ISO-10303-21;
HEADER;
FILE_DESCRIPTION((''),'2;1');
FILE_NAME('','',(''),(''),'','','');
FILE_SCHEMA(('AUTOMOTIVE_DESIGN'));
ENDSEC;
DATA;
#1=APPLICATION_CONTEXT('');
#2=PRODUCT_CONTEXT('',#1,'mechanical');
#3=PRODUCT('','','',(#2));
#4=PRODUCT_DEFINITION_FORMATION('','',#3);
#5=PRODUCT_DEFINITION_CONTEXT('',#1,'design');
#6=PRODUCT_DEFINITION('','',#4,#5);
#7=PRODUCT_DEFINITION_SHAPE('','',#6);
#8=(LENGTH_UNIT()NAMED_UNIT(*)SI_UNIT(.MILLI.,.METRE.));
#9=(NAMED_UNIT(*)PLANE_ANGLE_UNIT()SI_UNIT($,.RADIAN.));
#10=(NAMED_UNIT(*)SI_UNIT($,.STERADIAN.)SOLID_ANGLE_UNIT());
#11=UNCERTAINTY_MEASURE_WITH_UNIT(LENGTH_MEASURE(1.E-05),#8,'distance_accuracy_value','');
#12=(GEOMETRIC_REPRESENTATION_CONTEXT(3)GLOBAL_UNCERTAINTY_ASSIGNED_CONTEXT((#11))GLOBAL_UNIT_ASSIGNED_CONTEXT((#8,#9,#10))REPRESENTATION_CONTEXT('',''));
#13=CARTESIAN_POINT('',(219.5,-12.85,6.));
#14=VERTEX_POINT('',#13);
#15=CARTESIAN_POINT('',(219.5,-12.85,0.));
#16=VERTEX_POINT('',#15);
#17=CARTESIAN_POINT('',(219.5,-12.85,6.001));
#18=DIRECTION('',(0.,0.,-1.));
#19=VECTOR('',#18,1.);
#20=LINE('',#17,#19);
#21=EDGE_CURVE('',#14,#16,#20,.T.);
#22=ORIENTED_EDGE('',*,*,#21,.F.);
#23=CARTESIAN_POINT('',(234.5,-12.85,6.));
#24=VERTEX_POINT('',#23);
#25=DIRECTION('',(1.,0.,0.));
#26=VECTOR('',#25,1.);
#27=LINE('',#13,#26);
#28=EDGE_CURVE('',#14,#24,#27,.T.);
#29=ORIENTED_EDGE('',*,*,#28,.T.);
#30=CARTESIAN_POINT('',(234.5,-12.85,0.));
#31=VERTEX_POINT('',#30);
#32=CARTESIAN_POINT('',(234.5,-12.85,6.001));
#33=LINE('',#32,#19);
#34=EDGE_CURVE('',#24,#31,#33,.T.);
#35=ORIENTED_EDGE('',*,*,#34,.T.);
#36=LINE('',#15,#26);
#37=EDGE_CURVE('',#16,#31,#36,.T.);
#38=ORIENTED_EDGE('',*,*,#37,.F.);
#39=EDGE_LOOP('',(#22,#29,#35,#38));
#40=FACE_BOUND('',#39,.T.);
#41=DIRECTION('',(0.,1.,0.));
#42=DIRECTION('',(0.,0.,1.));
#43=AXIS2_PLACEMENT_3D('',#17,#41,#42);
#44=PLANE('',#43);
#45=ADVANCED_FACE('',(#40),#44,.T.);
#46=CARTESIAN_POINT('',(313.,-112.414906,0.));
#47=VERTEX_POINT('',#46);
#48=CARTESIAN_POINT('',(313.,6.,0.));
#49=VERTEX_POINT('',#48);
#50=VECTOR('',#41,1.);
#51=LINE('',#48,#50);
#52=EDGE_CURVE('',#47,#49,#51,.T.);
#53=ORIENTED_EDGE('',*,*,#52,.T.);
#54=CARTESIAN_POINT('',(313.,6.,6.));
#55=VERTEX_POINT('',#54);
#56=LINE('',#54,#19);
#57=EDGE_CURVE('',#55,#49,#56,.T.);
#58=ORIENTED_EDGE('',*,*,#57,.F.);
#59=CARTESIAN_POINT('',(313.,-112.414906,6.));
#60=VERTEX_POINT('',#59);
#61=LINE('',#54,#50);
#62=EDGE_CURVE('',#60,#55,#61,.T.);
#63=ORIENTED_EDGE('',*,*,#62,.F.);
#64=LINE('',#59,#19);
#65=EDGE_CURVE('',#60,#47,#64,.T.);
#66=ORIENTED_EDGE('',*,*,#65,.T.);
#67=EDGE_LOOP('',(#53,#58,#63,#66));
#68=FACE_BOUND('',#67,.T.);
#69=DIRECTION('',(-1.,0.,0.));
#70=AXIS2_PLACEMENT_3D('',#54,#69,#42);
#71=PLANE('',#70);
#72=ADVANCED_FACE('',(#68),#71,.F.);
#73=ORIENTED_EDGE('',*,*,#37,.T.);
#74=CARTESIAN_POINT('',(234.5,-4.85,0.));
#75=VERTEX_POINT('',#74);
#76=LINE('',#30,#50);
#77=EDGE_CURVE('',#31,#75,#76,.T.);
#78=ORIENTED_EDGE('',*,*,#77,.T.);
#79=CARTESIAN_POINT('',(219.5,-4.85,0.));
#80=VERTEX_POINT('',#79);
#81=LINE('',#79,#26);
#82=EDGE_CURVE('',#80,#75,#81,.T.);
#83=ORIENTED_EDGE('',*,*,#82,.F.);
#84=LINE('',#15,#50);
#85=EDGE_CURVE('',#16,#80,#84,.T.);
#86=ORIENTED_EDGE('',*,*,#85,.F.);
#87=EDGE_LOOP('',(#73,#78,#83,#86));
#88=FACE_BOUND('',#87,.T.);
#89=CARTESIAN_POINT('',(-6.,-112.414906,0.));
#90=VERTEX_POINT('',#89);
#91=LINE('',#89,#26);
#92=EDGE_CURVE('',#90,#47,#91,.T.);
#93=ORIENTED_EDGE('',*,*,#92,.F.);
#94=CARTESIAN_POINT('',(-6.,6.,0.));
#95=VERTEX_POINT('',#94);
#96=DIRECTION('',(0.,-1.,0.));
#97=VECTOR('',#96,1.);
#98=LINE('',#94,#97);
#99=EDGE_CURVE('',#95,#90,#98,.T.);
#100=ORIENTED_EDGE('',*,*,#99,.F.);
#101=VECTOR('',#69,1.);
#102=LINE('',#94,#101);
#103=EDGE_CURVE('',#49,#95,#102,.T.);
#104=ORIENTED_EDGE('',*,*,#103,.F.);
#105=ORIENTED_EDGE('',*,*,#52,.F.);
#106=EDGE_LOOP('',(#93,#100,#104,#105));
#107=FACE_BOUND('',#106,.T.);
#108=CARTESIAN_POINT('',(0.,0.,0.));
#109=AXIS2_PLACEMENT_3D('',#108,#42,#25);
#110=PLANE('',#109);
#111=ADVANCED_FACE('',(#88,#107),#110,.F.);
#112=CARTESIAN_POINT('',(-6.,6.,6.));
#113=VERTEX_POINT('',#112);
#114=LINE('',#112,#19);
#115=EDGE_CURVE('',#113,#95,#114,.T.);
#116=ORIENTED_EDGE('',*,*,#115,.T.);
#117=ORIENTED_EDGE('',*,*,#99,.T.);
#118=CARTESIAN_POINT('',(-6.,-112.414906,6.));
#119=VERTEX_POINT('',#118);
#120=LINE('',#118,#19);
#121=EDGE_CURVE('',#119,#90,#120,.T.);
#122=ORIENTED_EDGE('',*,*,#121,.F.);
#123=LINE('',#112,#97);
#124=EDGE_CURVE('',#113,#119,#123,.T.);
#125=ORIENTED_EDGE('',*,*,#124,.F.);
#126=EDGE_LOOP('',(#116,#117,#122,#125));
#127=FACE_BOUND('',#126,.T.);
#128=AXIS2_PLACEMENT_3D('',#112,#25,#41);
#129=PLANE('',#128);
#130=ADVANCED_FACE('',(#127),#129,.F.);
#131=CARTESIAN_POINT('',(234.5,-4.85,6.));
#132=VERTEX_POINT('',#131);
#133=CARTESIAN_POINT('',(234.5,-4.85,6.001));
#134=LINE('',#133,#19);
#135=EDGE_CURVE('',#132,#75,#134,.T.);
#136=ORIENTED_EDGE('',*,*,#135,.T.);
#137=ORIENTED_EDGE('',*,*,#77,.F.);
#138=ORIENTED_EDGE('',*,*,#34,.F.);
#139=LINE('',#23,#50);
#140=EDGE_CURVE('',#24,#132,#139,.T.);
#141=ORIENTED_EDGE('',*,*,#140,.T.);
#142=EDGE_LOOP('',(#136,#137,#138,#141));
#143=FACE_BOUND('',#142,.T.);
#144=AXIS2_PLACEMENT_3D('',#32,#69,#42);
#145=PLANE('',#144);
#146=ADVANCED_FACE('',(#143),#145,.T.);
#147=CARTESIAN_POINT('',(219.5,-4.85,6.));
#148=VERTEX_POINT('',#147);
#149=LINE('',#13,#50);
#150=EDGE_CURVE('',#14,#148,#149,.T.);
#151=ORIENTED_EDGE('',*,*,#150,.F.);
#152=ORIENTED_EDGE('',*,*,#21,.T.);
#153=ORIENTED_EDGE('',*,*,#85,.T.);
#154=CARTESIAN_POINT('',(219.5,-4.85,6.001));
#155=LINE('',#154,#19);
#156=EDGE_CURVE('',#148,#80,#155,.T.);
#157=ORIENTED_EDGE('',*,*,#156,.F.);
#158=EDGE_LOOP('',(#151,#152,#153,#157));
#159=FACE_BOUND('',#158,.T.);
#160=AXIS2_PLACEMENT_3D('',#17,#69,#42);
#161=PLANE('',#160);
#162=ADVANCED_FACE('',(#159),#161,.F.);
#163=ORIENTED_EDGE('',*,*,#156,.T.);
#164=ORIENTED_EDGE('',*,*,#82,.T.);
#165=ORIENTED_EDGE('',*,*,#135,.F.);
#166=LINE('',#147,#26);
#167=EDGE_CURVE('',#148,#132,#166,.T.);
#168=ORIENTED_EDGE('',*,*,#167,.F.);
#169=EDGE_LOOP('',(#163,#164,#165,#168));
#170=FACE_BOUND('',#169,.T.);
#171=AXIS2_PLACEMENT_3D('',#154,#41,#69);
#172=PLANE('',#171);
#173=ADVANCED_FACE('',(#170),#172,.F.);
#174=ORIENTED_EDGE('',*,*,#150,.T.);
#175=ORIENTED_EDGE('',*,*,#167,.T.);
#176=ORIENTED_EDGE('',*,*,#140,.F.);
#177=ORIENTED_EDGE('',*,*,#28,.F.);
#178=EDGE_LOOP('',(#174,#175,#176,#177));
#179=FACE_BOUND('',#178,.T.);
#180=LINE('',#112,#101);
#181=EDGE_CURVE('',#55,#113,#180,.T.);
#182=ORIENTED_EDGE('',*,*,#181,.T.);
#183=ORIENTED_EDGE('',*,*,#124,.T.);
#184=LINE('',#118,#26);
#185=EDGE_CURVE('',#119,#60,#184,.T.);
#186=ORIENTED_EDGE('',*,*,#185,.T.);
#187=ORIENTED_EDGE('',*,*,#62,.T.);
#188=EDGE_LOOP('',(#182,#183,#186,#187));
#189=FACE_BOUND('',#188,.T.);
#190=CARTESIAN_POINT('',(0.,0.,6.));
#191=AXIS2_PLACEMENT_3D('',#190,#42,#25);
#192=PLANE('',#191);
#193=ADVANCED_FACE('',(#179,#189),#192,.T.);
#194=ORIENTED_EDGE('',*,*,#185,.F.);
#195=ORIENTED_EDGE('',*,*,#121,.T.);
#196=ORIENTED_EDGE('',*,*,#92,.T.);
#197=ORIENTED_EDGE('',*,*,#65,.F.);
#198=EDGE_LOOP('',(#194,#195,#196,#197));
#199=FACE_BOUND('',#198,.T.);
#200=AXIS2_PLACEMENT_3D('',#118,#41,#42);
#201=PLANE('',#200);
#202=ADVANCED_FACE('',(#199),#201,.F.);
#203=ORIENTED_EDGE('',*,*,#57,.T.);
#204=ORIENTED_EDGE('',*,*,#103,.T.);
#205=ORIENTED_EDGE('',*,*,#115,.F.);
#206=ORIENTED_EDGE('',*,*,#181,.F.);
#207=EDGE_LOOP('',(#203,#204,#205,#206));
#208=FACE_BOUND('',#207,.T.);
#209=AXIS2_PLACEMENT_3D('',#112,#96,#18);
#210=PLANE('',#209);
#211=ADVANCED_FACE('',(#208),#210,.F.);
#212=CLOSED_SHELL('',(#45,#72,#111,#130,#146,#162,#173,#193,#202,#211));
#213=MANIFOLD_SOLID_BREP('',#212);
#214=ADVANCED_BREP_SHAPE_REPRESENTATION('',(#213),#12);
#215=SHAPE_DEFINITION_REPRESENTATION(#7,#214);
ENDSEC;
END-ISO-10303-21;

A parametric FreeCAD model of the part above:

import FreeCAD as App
import Part
import Sketcher
Q = App.Units.Quantity

doc = App.newDocument("Part")
params = doc.addObject("Spreadsheet::Sheet", "Params")
for row, (alias, value) in enumerate([
    ("sketch1_width", "319 mm"),
    ("pad1_length", "6 mm"),
    ("sketch2_width", "15 mm"),
    ("sketch2_height", "8 mm"),
], start=1):
    params.set(f"A{row}", alias)
    params.set(f"B{row}", "=" + value)
    params.setAlias(f"B{row}", alias)

body = doc.addObject("PartDesign::Body", "Body")

sketch1 = body.newObject("Sketcher::SketchObject", "Sketch")
sketch1.AttachmentSupport = (doc.getObject("XY_Plane"), [""])
sketch1.MapMode = "FlatFace"
sketch1.addGeometry([
    Part.LineSegment(App.Vector(-6, 6, 0), App.Vector(-6, -112, 0)),
    Part.LineSegment(App.Vector(-6, -112, 0), App.Vector(313, -112, 0)),
    Part.LineSegment(App.Vector(313, -112, 0), App.Vector(313, 6, 0)),
    Part.LineSegment(App.Vector(313, 6, 0), App.Vector(-6, 6, 0)),
], False)
sketch1.addConstraint([
    Sketcher.Constraint("Coincident", 0, 2, 1, 1),
    Sketcher.Constraint("Coincident", 1, 2, 2, 1),
    Sketcher.Constraint("Coincident", 2, 2, 3, 1),
    Sketcher.Constraint("Coincident", 3, 2, 0, 1),
    Sketcher.Constraint("Vertical", 0),
    Sketcher.Constraint("Horizontal", 1),
    Sketcher.Constraint("Vertical", 2),
    Sketcher.Constraint("Horizontal", 3),
    Sketcher.Constraint("DistanceX", 1, 1, 1, 2, Q("319 mm")),
    Sketcher.Constraint("DistanceX", 0, 2, -1, 1, Q("6 mm")),
    Sketcher.Constraint("DistanceY", -1, 1, 2, 2, Q("6 mm")),
    Sketcher.Constraint("DistanceY", 0, 2, 0, 1, Q("118.414906 mm")),
])
sketch1.setExpression("Constraints[8]", "Params.sketch1_width")
pad1 = body.newObject("PartDesign::Pad", "Pad")
pad1.Profile = sketch1
pad1.setExpression("Length", "Params.pad1_length")

sketch2 = body.newObject("Sketcher::SketchObject", "Sketch001")
sketch2.AttachmentSupport = (doc.getObject("XY_Plane"), [""])
sketch2.MapMode = "FlatFace"
sketch2.addGeometry([
    Part.LineSegment(App.Vector(234, -5, 0), App.Vector(234, -13, 0)),
    Part.LineSegment(App.Vector(234, -13, 0), App.Vector(220, -13, 0)),
    Part.LineSegment(App.Vector(220, -13, 0), App.Vector(220, -5, 0)),
    Part.LineSegment(App.Vector(220, -5, 0), App.Vector(234, -5, 0)),
], False)
sketch2.addConstraint([
    Sketcher.Constraint("Coincident", 0, 2, 1, 1),
    Sketcher.Constraint("Coincident", 1, 2, 2, 1),
    Sketcher.Constraint("Coincident", 2, 2, 3, 1),
    Sketcher.Constraint("Coincident", 3, 2, 0, 1),
    Sketcher.Constraint("Vertical", 0),
    Sketcher.Constraint("Horizontal", 1),
    Sketcher.Constraint("Vertical", 2),
    Sketcher.Constraint("Horizontal", 3),
    Sketcher.Constraint("DistanceX", 1, 2, 1, 1, Q("15 mm")),
    Sketcher.Constraint("DistanceY", 0, 2, 0, 1, Q("8 mm")),
    Sketcher.Constraint("DistanceX", -1, 1, 0, 2, Q("234.5 mm")),
    Sketcher.Constraint("DistanceY", 0, 2, -1, 1, Q("12.85 mm")),
])
sketch2.setExpression("Constraints[8]", "Params.sketch2_width")
sketch2.setExpression("Constraints[9]", "Params.sketch2_height")
pocket1 = body.newObject("PartDesign::Pocket", "Pocket")
pocket1.Profile = sketch2
pocket1.Type = "UpToFirst"
pocket1.Reversed = True

doc.recompute()
